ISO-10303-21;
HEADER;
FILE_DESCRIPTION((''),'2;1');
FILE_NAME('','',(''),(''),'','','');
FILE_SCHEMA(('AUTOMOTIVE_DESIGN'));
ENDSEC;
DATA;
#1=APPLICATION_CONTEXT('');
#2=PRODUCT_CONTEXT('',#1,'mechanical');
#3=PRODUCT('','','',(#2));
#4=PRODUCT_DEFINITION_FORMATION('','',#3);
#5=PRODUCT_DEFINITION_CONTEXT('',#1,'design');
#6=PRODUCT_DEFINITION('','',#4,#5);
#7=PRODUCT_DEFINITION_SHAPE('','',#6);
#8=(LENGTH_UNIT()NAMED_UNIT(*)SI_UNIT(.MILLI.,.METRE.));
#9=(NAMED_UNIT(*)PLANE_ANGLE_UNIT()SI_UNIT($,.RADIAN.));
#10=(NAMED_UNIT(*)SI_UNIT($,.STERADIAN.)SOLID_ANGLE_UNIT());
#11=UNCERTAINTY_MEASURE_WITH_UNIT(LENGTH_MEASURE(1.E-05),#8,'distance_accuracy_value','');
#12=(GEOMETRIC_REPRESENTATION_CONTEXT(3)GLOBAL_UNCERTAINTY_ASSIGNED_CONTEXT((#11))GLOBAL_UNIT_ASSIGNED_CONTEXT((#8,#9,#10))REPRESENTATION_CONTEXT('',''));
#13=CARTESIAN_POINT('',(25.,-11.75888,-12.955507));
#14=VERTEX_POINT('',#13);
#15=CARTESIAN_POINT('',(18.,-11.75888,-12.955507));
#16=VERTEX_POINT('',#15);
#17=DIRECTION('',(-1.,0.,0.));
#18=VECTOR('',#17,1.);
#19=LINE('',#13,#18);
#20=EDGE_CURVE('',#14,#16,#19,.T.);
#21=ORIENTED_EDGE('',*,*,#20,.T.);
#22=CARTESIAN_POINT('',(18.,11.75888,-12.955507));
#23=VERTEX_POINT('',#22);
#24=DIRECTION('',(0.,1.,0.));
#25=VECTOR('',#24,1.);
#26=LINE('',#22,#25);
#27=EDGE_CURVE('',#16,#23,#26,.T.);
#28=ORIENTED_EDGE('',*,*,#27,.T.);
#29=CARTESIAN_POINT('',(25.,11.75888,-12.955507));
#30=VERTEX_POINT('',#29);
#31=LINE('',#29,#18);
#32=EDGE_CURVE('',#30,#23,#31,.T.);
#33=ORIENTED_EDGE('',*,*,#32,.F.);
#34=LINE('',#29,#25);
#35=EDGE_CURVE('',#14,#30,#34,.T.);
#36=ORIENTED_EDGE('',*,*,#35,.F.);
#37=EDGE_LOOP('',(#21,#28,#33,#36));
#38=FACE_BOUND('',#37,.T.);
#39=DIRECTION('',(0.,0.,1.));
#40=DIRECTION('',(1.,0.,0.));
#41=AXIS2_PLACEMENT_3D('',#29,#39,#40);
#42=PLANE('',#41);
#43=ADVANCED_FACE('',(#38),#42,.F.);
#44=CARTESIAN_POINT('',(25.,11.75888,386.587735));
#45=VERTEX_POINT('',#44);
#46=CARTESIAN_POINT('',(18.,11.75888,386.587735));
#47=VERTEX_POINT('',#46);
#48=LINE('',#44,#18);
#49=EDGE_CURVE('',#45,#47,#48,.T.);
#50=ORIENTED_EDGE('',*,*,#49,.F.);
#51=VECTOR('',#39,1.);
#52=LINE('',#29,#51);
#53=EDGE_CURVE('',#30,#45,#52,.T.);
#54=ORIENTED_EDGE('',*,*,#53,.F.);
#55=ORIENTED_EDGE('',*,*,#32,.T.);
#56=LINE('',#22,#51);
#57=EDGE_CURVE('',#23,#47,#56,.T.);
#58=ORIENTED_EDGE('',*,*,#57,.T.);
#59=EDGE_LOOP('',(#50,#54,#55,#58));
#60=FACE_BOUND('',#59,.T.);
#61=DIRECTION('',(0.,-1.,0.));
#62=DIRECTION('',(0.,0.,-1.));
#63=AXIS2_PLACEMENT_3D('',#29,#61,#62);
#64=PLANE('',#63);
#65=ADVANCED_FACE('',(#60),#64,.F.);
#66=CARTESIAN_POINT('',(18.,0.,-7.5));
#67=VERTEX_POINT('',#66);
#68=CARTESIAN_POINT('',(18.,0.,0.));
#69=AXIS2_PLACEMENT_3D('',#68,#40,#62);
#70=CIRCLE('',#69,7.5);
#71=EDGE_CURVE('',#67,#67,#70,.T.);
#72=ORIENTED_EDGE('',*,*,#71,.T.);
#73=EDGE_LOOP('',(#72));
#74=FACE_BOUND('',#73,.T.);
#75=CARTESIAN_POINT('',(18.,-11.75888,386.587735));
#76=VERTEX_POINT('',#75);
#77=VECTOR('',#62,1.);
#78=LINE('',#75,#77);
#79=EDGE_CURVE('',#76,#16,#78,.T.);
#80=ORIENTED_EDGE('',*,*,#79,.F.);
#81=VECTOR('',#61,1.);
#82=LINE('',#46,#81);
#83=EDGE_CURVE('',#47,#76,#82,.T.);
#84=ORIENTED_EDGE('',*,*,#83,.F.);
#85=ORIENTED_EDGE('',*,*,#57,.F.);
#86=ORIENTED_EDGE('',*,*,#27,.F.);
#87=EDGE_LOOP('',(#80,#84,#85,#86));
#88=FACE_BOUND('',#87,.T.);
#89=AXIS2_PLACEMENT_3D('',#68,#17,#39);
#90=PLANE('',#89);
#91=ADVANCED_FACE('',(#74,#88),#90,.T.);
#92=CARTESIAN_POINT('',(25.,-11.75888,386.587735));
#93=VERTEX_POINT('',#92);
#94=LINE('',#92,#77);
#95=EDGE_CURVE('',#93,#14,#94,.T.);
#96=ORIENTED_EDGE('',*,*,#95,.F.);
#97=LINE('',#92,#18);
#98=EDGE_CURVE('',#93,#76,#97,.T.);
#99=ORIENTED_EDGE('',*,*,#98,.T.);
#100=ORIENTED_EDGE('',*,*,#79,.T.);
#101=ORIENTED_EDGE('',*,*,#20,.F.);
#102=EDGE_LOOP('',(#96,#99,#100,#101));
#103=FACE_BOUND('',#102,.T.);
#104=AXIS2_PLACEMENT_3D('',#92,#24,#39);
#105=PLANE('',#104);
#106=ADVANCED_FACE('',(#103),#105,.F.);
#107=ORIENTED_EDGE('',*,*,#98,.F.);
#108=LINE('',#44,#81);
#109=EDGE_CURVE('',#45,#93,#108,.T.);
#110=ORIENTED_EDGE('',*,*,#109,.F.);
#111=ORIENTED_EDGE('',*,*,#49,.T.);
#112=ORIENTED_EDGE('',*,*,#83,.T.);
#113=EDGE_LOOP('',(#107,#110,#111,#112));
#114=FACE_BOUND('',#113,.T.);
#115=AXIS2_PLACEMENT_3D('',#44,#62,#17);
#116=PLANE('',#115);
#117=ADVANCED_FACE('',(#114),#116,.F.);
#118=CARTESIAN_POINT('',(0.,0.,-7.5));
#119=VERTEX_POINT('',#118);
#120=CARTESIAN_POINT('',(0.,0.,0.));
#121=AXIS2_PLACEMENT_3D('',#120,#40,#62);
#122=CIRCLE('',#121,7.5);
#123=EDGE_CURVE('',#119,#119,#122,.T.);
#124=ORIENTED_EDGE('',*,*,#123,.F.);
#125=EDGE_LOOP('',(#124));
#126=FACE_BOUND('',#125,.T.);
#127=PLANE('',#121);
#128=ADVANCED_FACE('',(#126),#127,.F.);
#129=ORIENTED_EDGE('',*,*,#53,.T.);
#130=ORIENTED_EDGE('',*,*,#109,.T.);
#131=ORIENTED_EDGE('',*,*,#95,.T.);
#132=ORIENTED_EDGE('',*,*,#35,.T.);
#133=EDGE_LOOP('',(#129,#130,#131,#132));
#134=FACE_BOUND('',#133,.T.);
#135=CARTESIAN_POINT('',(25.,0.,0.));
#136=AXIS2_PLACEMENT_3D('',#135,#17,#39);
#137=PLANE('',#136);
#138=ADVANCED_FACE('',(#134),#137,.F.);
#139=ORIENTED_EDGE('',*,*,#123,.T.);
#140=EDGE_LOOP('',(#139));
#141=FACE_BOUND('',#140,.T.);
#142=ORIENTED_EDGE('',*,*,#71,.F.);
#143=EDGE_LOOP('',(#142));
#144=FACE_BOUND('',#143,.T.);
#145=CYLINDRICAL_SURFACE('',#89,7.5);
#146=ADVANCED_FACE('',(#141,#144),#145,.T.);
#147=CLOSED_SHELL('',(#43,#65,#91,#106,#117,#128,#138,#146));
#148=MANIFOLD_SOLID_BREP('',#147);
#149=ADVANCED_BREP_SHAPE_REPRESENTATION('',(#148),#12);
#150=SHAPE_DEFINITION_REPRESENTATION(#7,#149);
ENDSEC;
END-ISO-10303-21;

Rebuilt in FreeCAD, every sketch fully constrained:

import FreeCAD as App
import Part
import Sketcher
from FreeCAD import Vector


def add_polygon(sketch, points):
    """Adds a closed chain of lines whose ends are joined by coincident constraints."""
    first, n = sketch.GeometryCount, len(points)
    for a, b in zip(points, points[1:] + points[:1]):
        sketch.addGeometry(Part.LineSegment(App.Vector(*a, 0), App.Vector(*b, 0)), False)
    for i in range(n):
        sketch.addConstraint(Sketcher.Constraint("Coincident", first + i, 2, first + (i + 1) % n, 1))

doc = App.newDocument("Part")
params = doc.addObject("Spreadsheet::Sheet", "Params")
for row, (alias, value) in enumerate([
    ("sketch1_diameter", "15 mm"),
    ("pad1_length", "18 mm"),
    ("pad2_length", "7 mm"),
], start=1):
    params.set(f"A{row}", alias)
    params.set(f"B{row}", "=" + value)
    params.setAlias(f"B{row}", alias)

body = doc.addObject("PartDesign::Body", "Body")

sketch1 = body.newObject("Sketcher::SketchObject", "Sketch")
sketch1.AttachmentSupport = (doc.getObject("YZ_Plane"), [""])
sketch1.MapMode = "FlatFace"
sketch1.addGeometry(Part.Circle(Vector(0, 0, 0), Vector(0, 0, 1), 8), False)
sketch1.addConstraint([
    Sketcher.Constraint("Coincident", 0, 3, -1, 1),
    Sketcher.Constraint("Diameter", 0, 15.0),
])
sketch1.setExpression("Constraints[1]", "Params.sketch1_diameter")
pad1 = body.newObject("PartDesign::Pad", "Pad")
pad1.Profile = sketch1
pad1.setExpression("Length", "Params.pad1_length")

sketch2 = body.newObject("Sketcher::SketchObject", "Sketch001")
sketch2.AttachmentSupport = (doc.getObject("YZ_Plane"), [""])
sketch2.MapMode = "FlatFace"
sketch2.AttachmentOffset = App.Placement(Vector(0, 0, 18), App.Rotation())
add_polygon(sketch2, [(12, 387), (-12, 387), (-12, -13), (12, -13)])
sketch2.addConstraint([
    Sketcher.Constraint("Horizontal", 0),
    Sketcher.Constraint("Vertical", 1),
    Sketcher.Constraint("Horizontal", 2),
    Sketcher.Constraint("Vertical", 3),
    Sketcher.Constraint("DistanceX", 0, 2, 0, 1, 23.517759),
    Sketcher.Constraint("DistanceY", 1, 2, 1, 1, 399.543241),
    Sketcher.Constraint("DistanceX", 0, 2, -1, 1, 11.75888),
    Sketcher.Constraint("DistanceY", -1, 1, 0, 2, 386.587735),
])
pad2 = body.newObject("PartDesign::Pad", "Pad001")
pad2.Profile = sketch2
pad2.setExpression("Length", "Params.pad2_length")

doc.recompute()
